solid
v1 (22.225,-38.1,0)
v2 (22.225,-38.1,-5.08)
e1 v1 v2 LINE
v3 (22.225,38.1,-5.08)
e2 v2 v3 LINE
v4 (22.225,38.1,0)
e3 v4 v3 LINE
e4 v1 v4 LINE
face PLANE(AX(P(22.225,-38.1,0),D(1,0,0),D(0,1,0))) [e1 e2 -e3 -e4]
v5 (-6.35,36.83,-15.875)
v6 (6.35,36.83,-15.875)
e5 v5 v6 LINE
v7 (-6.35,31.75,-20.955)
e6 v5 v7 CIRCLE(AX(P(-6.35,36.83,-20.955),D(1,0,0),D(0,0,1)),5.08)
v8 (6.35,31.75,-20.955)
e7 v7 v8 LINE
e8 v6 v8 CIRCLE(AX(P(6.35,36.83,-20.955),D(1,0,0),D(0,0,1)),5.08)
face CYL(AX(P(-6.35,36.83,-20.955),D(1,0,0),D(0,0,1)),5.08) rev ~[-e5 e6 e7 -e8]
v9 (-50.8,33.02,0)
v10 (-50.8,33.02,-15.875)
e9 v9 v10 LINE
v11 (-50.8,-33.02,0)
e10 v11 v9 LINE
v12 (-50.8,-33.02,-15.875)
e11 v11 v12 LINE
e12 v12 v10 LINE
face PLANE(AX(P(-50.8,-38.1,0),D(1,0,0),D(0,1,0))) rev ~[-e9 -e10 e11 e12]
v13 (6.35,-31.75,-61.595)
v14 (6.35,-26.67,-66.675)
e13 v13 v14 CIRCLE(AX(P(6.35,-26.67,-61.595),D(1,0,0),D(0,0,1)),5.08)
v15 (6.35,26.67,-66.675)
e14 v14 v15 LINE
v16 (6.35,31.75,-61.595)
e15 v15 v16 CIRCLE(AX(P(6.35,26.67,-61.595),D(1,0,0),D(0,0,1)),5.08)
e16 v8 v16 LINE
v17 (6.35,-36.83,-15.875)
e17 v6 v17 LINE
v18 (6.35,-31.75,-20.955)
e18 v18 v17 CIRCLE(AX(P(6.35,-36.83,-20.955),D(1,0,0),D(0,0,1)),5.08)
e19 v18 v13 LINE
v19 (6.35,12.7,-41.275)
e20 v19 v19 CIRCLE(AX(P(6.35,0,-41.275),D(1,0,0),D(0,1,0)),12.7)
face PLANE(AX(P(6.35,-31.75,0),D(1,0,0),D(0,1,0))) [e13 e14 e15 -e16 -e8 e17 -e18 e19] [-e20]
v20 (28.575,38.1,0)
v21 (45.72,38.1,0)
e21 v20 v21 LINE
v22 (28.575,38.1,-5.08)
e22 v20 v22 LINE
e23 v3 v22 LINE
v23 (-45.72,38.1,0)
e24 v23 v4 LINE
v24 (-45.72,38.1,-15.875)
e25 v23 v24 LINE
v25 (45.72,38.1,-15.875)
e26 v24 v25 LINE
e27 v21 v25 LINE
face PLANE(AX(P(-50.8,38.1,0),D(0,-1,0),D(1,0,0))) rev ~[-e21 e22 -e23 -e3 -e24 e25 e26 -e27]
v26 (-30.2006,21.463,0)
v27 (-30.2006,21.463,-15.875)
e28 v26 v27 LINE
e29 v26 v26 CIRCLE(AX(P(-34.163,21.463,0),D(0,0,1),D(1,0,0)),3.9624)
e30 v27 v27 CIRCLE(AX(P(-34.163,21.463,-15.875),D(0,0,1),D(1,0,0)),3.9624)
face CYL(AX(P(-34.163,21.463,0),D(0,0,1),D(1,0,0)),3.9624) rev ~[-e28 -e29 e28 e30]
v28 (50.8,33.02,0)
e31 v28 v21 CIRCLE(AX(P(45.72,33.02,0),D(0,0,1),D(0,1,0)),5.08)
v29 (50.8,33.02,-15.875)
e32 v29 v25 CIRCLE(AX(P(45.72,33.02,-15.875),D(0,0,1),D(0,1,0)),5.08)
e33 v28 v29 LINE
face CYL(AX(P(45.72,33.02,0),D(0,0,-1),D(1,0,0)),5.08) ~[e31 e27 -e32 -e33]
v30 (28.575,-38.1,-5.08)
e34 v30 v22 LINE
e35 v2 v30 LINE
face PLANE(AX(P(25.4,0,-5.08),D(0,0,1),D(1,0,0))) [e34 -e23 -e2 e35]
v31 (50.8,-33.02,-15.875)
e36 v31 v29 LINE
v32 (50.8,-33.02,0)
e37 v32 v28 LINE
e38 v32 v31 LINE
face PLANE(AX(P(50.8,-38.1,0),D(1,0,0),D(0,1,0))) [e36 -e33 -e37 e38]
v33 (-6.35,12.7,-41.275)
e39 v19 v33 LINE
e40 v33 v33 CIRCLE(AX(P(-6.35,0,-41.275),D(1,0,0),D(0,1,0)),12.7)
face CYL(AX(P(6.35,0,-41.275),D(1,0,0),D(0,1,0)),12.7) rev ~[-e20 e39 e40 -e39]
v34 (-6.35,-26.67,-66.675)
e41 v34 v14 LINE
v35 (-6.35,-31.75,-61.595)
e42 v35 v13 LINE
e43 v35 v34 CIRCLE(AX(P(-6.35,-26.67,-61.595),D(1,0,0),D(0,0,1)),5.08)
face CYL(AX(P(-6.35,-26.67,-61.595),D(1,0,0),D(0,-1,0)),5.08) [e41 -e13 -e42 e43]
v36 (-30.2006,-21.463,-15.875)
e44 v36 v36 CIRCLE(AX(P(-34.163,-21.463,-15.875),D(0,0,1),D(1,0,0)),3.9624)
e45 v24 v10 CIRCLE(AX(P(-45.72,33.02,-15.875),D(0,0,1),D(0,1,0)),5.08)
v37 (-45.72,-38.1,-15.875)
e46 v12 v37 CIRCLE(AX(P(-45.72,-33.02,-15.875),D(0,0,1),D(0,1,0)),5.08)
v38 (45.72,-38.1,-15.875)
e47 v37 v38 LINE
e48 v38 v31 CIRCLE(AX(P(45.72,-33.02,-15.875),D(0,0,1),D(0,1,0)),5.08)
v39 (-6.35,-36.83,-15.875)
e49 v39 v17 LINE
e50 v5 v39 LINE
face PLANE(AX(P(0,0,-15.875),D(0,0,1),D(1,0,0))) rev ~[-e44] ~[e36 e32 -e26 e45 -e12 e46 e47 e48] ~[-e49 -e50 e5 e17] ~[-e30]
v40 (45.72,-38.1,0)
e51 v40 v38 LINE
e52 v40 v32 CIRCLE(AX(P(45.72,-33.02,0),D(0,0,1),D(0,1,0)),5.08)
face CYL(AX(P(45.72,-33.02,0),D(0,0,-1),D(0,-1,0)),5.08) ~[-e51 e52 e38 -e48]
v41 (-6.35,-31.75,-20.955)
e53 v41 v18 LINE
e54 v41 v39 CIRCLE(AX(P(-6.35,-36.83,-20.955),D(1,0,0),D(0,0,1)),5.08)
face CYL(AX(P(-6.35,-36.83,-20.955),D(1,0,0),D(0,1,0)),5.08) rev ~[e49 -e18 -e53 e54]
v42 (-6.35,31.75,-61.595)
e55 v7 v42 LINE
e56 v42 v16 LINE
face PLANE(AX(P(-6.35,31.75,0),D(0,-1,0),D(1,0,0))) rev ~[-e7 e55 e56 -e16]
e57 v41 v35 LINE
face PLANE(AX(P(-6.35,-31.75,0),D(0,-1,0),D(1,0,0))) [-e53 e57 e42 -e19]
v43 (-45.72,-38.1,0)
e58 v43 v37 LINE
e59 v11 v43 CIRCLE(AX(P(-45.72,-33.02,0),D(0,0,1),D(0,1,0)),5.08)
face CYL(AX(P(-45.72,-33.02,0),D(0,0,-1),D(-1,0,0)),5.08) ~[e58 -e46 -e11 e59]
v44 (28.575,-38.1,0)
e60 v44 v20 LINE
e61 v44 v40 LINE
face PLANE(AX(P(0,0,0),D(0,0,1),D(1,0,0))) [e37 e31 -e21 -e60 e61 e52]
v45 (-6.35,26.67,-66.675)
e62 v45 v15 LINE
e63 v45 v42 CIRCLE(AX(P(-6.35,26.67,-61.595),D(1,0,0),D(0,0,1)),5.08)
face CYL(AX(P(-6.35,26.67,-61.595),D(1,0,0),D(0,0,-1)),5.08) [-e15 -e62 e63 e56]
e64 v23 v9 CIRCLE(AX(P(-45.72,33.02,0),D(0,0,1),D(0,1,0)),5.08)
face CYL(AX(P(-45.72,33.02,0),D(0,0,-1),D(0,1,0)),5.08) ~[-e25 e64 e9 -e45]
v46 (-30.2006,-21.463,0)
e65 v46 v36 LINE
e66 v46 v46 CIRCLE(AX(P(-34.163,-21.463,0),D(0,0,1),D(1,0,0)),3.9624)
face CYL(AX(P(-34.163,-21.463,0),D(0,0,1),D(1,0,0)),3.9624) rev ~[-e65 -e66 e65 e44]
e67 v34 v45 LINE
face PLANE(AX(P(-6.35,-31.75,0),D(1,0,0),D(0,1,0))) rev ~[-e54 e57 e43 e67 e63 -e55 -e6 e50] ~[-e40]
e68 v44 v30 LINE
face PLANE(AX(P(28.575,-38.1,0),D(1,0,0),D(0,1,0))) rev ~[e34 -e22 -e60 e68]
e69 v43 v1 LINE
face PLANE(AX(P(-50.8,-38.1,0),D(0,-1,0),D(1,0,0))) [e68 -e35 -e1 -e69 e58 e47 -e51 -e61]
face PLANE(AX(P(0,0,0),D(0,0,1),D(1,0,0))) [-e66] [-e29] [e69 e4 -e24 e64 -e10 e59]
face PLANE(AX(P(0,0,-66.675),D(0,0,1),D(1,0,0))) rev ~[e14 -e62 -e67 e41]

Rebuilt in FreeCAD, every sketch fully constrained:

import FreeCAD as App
import Part
import Sketcher
from FreeCAD import Vector
Q = App.Units.Quantity


def edges_at(feature, points):
    """Names of the edges that pass closest to the given points."""
    edges = feature.Shape.Edges
    near = lambda p: min(range(len(edges)), key=lambda i: edges[i].distToShape(Part.Vertex(*p))[0])
    return sorted({f"Edge{near(p) + 1}" for p in points})


def add_polygon(sketch, points):
    """Adds a closed chain of lines whose ends are joined by coincident constraints."""
    first, n = sketch.GeometryCount, len(points)
    for a, b in zip(points, points[1:] + points[:1]):
        sketch.addGeometry(Part.LineSegment(App.Vector(*a, 0), App.Vector(*b, 0)), False)
    for i in range(n):
        sketch.addConstraint(Sketcher.Constraint("Coincident", first + i, 2, first + (i + 1) % n, 1))

doc = App.newDocument("Part")
body = doc.addObject("PartDesign::Body", "Body")

# Sketch on XY plane
sketch1 = body.newObject("Sketcher::SketchObject", "Sketch")
sketch1.AttachmentSupport = (doc.getObject("XY_Plane"), [""])
sketch1.MapMode = "FlatFace"
add_polygon(sketch1, [(-50.8, 38.1), (-50.8, -38.1), (50.8, -38.1), (50.8, 38.1)])  # lines 0-3
sketch1.addGeometry(Part.Circle(Vector(-34.163, -21.463, 0), Vector(0, 0, 1), 3.9624), False)  # 4
sketch1.addGeometry(Part.Circle(Vector(-34.163, 21.463, 0), Vector(0, 0, 1), 3.9624), False)  # 5
add_polygon(sketch1, [(6.35, -31.75), (-6.35, -31.75), (-6.35, 31.75), (6.35, 31.75)])  # lines 6-9
sketch1.addConstraint([
    Sketcher.Constraint("Vertical", 0),
    Sketcher.Constraint("Horizontal", 1),
    Sketcher.Constraint("Vertical", 2),
    Sketcher.Constraint("Horizontal", 3),
    Sketcher.Constraint("Horizontal", 6),
    Sketcher.Constraint("Vertical", 7),
    Sketcher.Constraint("Horizontal", 8),
    Sketcher.Constraint("Vertical", 9),
    Sketcher.Constraint("Equal", 4, 5),
    Sketcher.Constraint("Symmetric", 0, 2, 2, 2, -1, 1),
    Sketcher.Constraint("Symmetric", 6, 2, 8, 2, -1, 1),
    Sketcher.Constraint("Symmetric", 4, 3, 5, 3, -1),
    Sketcher.Constraint("DistanceX", 1, 1, 1, 2, Q("4 in")),
    Sketcher.Constraint("DistanceY", 0, 2, 0, 1, Q("3 in")),
    Sketcher.Constraint("Diameter", 4, Q("0.312 in")),
    Sketcher.Constraint("DistanceX", 6, 2, 6, 1, Q("0.5 in")),
    Sketcher.Constraint("DistanceY", 7, 1, 7, 2, Q("2.5 in")),
    Sketcher.Constraint("DistanceY", 4, 3, 5, 3, Q("1.69 in")),
    Sketcher.Constraint("DistanceX", 4, 3, -1, 1, Q("1.345 in")),
])
pad1 = body.newObject("PartDesign::Pad", "Pad")
pad1.Profile = sketch1
pad1.Length = Q("0.625 in")
pad1.Reversed = True

# Sketch on XY plane
sketch2 = body.newObject("Sketcher::SketchObject", "Sketch001")
sketch2.AttachmentSupport = (doc.getObject("XY_Plane"), [""])
sketch2.MapMode = "FlatFace"
add_polygon(sketch2, [(-6.35, 31.75), (-6.35, -31.75), (6.35, -31.75), (6.35, 31.75)])  # lines 0-3
sketch2.addConstraint([
    Sketcher.Constraint("Vertical", 0),
    Sketcher.Constraint("Horizontal", 1),
    Sketcher.Constraint("Vertical", 2),
    Sketcher.Constraint("Horizontal", 3),
    Sketcher.Constraint("Symmetric", 0, 2, 2, 2, -1, 1),
    Sketcher.Constraint("DistanceX", 1, 1, 1, 2, Q("0.5 in")),
    Sketcher.Constraint("DistanceY", 0, 2, 0, 1, Q("2.5 in")),
])
pad2 = body.newObject("PartDesign::Pad", "Pad001")
pad2.Profile = sketch2
pad2.Length = Q("2.625 in")
pad2.Reversed = True

# Sketch on XY plane
sketch3 = body.newObject("Sketcher::SketchObject", "Sketch002")
sketch3.AttachmentSupport = (doc.getObject("XY_Plane"), [""])
sketch3.MapMode = "FlatFace"
add_polygon(sketch3, [(22.225, 38.1), (22.225, -38.1), (28.575, -38.1), (28.575, 38.1)])  # lines 0-3
sketch3.addConstraint([
    Sketcher.Constraint("Vertical", 0),
    Sketcher.Constraint("Horizontal", 1),
    Sketcher.Constraint("Vertical", 2),
    Sketcher.Constraint("Horizontal", 3),
    Sketcher.Constraint("DistanceY", 0, 2, 0, 1, Q("3 in")),
    Sketcher.Constraint("DistanceX", 1, 1, 1, 2, Q("0.25 in")),
    Sketcher.Constraint("DistanceY", 0, 2, -1, 1, Q("1.5 in")),
    Sketcher.Constraint("DistanceX", -1, 1, 0, 2, Q("0.875 in")),
])
pocket1 = body.newObject("PartDesign::Pocket", "Pocket")
pocket1.Profile = sketch3
pocket1.Length = Q("0.2 in")

# Sketch on YZ plane
sketch4 = body.newObject("Sketcher::SketchObject", "Sketch003")
sketch4.AttachmentSupport = (doc.getObject("YZ_Plane"), [""])
sketch4.MapMode = "FlatFace"
sketch4.AttachmentOffset = App.Placement(Vector(0, 0, 0.25 * 25.4), App.Rotation())
sketch4.addGeometry(Part.Circle(Vector(0, -41.275, 0), Vector(0, 0, 1), 12.7), False)
sketch4.addConstraint([
    Sketcher.Constraint("PointOnObject", 0, 3, -2),
    Sketcher.Constraint("Diameter", 0, Q("1 in")),
    Sketcher.Constraint("DistanceY", 0, 3, -1, 1, Q("1.625 in")),
])
pocket2 = body.newObject("PartDesign::Pocket", "Pocket001")
pocket2.Profile = sketch4
pocket2.Length = Q("1 in")
doc.recompute()

fillet = body.newObject("PartDesign::Fillet", "Fillet")
fillet.Base = (pocket2, edges_at(pocket2, [(50.8, -38.1, -7.938)]))
fillet.Radius = Q("0.2 in")
doc.recompute()

fillet2 = body.newObject("PartDesign::Fillet", "Fillet001")
fillet2.Base = (fillet, edges_at(fillet, [(50.8, 38.1, -7.938)]))
fillet2.Radius = Q("0.2 in")
doc.recompute()

fillet3 = body.newObject("PartDesign::Fillet", "Fillet002")
fillet3.Base = (fillet2, edges_at(fillet2, [(-50.8, 38.1, -7.938)]))
fillet3.Radius = Q("0.2 in")
doc.recompute()

fillet4 = body.newObject("PartDesign::Fillet", "Fillet003")
fillet4.Base = (fillet3, edges_at(fillet3, [(-50.8, -38.1, -7.938)]))
fillet4.Radius = Q("0.2 in")
doc.recompute()

fillet5 = body.newObject("PartDesign::Fillet", "Fillet004")
fillet5.Base = (fillet4, edges_at(fillet4, [(0, -31.75, -66.675)]))
fillet5.Radius = Q("0.2 in")
doc.recompute()

fillet6 = body.newObject("PartDesign::Fillet", "Fillet005")
fillet6.Base = (fillet5, edges_at(fillet5, [(0, 31.75, -66.675)]))
fillet6.Radius = Q("0.2 in")
doc.recompute()

fillet7 = body.newObject("PartDesign::Fillet", "Fillet006")
fillet7.Base = (fillet6, edges_at(fillet6, [(0, -31.75, -15.875)]))
fillet7.Radius = Q("0.2 in")
doc.recompute()

fillet8 = body.newObject("PartDesign::Fillet", "Fillet007")
fillet8.Base = (fillet7, edges_at(fillet7, [(0, 31.75, -15.875)]))
fillet8.Radius = Q("0.2 in")

doc.recompute()
